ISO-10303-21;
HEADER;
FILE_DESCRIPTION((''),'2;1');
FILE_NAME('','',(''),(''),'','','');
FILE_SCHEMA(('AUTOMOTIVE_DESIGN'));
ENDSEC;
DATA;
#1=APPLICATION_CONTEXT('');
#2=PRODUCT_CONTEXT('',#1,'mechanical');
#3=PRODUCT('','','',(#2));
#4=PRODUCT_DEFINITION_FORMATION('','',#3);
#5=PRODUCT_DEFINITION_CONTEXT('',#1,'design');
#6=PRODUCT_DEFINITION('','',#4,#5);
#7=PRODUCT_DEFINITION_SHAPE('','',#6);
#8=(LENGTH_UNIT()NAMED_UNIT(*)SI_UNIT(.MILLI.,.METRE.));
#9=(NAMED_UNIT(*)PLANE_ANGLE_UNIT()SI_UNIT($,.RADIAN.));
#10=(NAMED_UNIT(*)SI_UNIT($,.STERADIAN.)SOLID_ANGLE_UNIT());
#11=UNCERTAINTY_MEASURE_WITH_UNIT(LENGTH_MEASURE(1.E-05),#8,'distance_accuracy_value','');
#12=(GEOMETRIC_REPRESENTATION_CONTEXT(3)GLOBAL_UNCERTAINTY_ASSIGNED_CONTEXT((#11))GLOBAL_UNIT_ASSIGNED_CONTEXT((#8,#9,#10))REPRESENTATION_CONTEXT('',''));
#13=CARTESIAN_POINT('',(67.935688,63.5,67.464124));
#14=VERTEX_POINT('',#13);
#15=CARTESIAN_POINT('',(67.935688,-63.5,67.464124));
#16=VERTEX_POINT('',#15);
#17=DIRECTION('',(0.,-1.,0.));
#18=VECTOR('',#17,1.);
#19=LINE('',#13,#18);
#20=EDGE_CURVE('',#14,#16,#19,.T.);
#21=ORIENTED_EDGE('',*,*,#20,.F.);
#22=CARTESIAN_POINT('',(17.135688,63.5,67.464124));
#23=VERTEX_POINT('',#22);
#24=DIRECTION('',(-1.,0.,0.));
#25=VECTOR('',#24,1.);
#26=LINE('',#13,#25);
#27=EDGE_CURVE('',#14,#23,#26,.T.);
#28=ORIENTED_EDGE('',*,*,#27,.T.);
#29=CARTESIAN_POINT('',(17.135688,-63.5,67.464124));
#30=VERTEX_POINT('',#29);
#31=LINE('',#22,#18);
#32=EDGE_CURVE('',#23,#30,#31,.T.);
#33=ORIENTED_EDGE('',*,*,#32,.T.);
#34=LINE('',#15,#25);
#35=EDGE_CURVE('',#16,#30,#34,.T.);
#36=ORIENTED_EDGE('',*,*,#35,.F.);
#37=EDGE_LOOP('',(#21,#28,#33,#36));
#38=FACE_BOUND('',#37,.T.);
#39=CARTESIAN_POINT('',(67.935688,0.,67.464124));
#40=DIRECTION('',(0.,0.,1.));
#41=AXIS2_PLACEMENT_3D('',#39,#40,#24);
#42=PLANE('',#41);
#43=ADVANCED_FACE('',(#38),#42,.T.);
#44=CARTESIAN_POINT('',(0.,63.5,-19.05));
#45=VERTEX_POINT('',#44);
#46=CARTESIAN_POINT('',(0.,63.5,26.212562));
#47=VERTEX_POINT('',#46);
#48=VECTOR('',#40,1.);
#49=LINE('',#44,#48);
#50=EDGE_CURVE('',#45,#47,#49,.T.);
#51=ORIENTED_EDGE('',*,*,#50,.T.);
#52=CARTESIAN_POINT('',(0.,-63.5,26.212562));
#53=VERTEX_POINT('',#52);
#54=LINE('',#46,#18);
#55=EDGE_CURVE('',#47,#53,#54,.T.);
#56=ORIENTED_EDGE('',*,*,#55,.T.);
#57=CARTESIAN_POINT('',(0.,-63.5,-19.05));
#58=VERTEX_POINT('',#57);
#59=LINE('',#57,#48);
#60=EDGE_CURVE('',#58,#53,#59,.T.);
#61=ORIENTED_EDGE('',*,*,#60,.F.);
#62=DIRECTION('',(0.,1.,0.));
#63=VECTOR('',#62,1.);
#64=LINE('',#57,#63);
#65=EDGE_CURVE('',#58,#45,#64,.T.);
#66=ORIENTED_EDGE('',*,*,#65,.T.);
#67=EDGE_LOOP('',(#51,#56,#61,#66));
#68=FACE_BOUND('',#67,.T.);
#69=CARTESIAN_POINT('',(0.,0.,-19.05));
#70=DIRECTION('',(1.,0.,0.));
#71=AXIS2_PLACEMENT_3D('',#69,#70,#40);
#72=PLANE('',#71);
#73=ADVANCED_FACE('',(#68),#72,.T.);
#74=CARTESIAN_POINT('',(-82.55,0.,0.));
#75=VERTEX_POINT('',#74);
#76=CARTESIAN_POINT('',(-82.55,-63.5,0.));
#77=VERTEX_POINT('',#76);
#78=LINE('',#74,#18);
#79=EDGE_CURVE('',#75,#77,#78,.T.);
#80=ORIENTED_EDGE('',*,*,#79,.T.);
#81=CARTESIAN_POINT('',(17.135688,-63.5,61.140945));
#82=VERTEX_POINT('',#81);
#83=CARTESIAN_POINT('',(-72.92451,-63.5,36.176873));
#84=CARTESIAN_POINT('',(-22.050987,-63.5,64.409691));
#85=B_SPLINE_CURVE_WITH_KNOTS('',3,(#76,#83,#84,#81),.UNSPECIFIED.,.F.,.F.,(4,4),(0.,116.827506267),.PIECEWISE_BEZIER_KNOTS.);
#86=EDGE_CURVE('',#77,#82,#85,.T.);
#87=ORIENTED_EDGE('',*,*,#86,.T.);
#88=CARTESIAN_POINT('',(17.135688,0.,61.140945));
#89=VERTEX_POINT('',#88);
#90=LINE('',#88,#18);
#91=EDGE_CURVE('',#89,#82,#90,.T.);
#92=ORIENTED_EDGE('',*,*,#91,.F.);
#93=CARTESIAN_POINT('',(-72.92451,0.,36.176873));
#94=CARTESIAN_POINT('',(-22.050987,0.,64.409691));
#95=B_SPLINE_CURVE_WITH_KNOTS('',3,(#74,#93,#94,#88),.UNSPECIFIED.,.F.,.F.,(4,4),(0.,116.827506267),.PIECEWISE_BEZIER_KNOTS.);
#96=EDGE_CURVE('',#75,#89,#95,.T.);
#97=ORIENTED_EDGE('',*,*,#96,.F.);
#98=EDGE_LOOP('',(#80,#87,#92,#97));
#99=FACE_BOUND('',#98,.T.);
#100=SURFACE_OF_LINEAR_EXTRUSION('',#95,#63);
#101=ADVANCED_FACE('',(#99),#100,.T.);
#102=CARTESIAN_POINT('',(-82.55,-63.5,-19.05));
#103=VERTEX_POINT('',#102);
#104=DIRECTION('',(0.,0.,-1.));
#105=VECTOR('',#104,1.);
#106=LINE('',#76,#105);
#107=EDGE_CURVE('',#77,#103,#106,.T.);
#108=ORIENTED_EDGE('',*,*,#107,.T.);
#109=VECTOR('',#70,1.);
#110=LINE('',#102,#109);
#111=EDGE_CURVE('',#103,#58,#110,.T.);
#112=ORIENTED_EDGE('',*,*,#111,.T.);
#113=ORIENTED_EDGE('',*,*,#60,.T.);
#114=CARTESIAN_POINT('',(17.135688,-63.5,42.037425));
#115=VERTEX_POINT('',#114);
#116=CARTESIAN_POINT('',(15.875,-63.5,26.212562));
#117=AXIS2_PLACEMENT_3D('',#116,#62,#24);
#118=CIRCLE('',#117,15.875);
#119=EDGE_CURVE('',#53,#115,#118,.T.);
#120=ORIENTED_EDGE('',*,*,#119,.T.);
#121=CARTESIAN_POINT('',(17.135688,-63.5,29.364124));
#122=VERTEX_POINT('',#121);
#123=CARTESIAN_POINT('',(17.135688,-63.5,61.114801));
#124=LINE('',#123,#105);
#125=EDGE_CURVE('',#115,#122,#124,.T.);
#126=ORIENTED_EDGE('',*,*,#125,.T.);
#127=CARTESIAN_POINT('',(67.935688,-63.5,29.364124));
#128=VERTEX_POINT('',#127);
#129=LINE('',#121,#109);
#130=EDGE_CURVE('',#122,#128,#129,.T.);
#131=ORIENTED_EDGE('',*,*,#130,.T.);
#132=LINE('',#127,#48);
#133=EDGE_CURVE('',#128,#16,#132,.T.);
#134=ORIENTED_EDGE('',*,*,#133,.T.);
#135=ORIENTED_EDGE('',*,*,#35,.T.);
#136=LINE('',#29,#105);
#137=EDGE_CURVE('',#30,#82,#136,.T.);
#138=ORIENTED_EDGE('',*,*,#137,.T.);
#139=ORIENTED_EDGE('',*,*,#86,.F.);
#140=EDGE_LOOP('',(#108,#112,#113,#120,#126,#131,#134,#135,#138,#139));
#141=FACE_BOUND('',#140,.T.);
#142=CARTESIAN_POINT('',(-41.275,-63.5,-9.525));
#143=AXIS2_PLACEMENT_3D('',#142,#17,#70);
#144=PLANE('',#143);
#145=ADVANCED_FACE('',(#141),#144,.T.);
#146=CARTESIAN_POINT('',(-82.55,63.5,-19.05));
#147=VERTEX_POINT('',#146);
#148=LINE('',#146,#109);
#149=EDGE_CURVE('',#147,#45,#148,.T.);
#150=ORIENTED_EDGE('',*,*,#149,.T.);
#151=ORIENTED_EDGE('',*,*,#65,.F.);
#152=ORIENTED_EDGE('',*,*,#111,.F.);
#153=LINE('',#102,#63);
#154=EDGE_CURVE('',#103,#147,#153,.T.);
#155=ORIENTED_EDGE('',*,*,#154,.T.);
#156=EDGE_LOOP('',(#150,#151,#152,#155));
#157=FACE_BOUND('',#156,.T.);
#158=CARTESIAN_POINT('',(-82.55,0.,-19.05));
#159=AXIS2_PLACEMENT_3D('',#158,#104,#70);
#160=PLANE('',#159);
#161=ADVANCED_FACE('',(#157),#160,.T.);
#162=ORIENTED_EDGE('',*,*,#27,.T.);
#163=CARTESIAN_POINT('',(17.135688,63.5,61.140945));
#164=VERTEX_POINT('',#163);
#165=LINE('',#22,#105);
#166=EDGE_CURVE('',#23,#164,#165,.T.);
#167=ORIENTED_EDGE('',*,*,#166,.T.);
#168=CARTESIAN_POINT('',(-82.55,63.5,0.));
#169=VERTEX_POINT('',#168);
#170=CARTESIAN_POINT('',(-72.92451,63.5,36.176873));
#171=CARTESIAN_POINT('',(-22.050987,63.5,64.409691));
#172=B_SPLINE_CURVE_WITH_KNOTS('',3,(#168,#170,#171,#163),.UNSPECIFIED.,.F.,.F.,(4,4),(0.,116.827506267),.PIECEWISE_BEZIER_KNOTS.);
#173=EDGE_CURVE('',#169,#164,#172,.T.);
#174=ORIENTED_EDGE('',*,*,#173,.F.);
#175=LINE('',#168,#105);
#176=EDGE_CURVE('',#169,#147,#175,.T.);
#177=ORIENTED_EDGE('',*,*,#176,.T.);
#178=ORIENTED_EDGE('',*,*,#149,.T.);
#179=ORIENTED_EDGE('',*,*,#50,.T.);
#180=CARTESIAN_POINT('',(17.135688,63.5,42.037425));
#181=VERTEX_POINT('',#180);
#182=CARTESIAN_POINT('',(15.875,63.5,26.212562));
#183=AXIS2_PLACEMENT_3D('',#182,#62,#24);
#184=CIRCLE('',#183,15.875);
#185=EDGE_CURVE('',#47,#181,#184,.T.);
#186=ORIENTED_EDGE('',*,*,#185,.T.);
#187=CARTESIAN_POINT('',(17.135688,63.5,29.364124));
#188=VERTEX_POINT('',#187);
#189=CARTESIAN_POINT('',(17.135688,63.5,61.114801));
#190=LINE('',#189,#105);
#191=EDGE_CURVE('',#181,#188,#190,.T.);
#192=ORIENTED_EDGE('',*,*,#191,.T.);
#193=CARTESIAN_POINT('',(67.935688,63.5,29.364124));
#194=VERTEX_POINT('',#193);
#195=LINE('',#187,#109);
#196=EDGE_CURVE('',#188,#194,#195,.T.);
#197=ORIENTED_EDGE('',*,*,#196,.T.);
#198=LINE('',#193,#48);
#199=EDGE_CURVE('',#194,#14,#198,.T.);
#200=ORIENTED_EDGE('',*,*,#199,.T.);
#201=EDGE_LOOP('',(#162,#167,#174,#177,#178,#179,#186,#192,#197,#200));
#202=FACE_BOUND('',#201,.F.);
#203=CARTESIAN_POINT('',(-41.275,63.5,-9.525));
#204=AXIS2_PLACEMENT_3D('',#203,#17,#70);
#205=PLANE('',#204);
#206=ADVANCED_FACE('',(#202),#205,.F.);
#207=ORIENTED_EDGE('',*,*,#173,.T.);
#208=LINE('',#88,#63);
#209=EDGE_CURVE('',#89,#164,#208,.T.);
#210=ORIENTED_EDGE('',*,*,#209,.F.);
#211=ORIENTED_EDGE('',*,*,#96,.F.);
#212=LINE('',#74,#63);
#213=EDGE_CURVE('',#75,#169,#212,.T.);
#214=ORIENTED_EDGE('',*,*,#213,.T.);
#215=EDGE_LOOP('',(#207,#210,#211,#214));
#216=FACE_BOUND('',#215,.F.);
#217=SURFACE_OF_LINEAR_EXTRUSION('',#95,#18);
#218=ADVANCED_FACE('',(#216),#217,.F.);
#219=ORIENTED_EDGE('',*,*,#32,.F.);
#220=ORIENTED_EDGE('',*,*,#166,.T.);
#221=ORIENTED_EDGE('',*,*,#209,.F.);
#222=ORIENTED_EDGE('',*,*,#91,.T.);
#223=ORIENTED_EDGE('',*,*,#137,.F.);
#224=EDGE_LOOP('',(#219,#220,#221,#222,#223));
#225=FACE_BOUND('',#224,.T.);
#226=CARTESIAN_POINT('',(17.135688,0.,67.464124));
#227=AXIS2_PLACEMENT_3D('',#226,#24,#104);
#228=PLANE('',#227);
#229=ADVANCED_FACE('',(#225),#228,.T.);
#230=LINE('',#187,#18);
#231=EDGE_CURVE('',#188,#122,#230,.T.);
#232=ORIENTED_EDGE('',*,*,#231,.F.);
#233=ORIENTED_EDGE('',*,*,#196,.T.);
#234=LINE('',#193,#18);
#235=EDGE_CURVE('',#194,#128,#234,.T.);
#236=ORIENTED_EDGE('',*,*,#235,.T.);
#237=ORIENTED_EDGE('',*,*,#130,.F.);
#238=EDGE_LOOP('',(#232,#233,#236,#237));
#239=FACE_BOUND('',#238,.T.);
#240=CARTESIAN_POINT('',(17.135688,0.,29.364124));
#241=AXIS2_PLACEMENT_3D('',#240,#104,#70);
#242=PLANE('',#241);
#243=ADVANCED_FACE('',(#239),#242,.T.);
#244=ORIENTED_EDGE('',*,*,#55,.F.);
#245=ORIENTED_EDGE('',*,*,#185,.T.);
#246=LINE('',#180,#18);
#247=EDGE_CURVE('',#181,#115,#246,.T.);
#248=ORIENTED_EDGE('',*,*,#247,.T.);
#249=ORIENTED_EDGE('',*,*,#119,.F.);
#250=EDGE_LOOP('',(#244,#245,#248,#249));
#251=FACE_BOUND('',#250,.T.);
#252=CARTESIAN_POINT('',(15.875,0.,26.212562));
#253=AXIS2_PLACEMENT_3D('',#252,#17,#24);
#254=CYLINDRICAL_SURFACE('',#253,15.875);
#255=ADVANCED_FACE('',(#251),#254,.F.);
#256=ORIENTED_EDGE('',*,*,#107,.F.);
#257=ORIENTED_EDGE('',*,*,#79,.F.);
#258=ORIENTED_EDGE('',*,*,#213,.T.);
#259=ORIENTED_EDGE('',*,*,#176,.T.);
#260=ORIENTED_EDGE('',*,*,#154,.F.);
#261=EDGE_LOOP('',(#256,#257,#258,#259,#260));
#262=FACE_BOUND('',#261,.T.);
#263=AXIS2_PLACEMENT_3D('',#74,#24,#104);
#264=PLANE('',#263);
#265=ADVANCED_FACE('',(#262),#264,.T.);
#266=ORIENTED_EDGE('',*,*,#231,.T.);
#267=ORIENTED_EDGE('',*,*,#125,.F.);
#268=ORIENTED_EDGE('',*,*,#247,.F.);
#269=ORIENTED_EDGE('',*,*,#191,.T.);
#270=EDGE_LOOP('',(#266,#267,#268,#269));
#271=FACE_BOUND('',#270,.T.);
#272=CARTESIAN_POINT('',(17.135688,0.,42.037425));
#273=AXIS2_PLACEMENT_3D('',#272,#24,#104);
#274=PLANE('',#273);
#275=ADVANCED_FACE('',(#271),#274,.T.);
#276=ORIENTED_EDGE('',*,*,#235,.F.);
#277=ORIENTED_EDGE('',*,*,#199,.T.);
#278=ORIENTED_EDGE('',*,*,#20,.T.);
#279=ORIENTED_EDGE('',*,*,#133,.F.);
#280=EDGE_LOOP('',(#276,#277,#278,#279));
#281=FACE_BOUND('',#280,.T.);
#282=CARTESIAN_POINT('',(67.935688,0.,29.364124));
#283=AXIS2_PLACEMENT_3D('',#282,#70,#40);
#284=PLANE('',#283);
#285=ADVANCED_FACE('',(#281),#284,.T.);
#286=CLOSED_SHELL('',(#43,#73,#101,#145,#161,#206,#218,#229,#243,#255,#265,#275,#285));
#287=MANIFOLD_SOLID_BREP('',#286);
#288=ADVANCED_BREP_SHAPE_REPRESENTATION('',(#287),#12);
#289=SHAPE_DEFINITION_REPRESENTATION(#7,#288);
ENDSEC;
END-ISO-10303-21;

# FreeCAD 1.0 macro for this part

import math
import FreeCAD as App
import Part
import Sketcher

V = App.Vector
Q = App.Units.Quantity

doc = App.newDocument("Part")
body = doc.addObject("PartDesign::Body", "Body")

# Sketch on XZ plane
sketch1 = body.newObject("Sketcher::SketchObject", "Sketch")
sketch1.AttachmentSupport = (doc.getObject("XZ_Plane"), [""])
sketch1.MapMode = "FlatFace"
sketch1.addGeometry(Part.LineSegment(V(0, -19.05, 0), V(0, 26.212562, 0)), False)
sketch1.addGeometry(Part.ArcOfCircle(Part.Circle(V(15.875, 26.212562, 0), V(0, 0, 1), 15.875), math.radians(85.445148), math.radians(180)), False)
sketch1.addGeometry(Part.LineSegment(V(17.135688, 42.037425, 0), V(17.135688, 29.364124, 0)), False)
sketch1.addGeometry(Part.LineSegment(V(17.135688, 29.364124, 0), V(67.935688, 29.364124, 0)), False)
sketch1.addGeometry(Part.LineSegment(V(67.935688, 29.364124, 0), V(67.935688, 67.464124, 0)), False)
sketch1.addGeometry(Part.LineSegment(V(67.935688, 67.464124, 0), V(17.135688, 67.464124, 0)), False)
sketch1.addGeometry(Part.LineSegment(V(17.135688, 67.464124, 0), V(17.135688, 61.140945, 0)), False)
sketch1.addGeometry(Part.BSplineCurve([V(-82.55, 0, 0), V(-72.92451, 36.176873, 0), V(-22.050987, 64.409691, 0), V(17.135688, 61.140945, 0)], [4, 4], [0, 116.827506267], False, 3, [1, 1, 1, 1], False), False)
sketch1.addGeometry(Part.LineSegment(V(-82.55, 0, 0), V(-82.55, -19.05, 0)), False)
sketch1.addGeometry(Part.LineSegment(V(-82.55, -19.05, 0), V(0, -19.05, 0)), False)
sketch1.addConstraint(Sketcher.Constraint("Block", 7))
sketch1.addConstraint(Sketcher.Constraint("Tangent", 0, 2, 1, 2))
sketch1.addConstraint(Sketcher.Constraint("Coincident", 1, 1, 2, 1))
sketch1.addConstraint(Sketcher.Constraint("Coincident", 2, 2, 3, 1))
sketch1.addConstraint(Sketcher.Constraint("Coincident", 3, 2, 4, 1))
sketch1.addConstraint(Sketcher.Constraint("Coincident", 4, 2, 5, 1))
sketch1.addConstraint(Sketcher.Constraint("Coincident", 5, 2, 6, 1))
sketch1.addConstraint(Sketcher.Constraint("Coincident", 6, 2, 7, 2))
sketch1.addConstraint(Sketcher.Constraint("Coincident", 7, 1, 8, 1))
sketch1.addConstraint(Sketcher.Constraint("Coincident", 8, 2, 9, 1))
sketch1.addConstraint(Sketcher.Constraint("Coincident", 9, 2, 0, 1))
sketch1.addConstraint(Sketcher.Constraint("Vertical", 0))
sketch1.addConstraint(Sketcher.Constraint("Vertical", 2))
sketch1.addConstraint(Sketcher.Constraint("Horizontal", 3))
sketch1.addConstraint(Sketcher.Constraint("Vertical", 4))
sketch1.addConstraint(Sketcher.Constraint("Horizontal", 5))
sketch1.addConstraint(Sketcher.Constraint("Vertical", 6))
sketch1.addConstraint(Sketcher.Constraint("Vertical", 8))
sketch1.addConstraint(Sketcher.Constraint("Horizontal", 9))
sketch1.addConstraint(Sketcher.Constraint("PointOnObject", 0, 2, -2))
sketch1.addConstraint(Sketcher.Constraint("Vertical", 2, 2, 5, 2))
sketch1.addConstraint(Sketcher.Constraint("DistanceX", 3, 1, 3, 2, Q("2 in")))
sketch1.addConstraint(Sketcher.Constraint("DistanceY", 4, 1, 4, 2, Q("1.5 in")))
sketch1.addConstraint(Sketcher.Constraint("Radius", 1, Q("0.625 in")))
sketch1.addConstraint(Sketcher.Constraint("DistanceY", 8, 2, 8, 1, Q("0.75 in")))
sketch1.addConstraint(Sketcher.Constraint("DistanceY", 2, 2, 2, 1, Q("12.673301 mm")))
sketch1.addConstraint(Sketcher.Constraint("DistanceY", 0, 1, 0, 2, Q("45.262562 mm")))
pad1 = body.newObject("PartDesign::Pad", "Pad")
pad1.Profile = sketch1
pad1.Length = Q("5 in")
pad1.Midplane = True

doc.recompute()
